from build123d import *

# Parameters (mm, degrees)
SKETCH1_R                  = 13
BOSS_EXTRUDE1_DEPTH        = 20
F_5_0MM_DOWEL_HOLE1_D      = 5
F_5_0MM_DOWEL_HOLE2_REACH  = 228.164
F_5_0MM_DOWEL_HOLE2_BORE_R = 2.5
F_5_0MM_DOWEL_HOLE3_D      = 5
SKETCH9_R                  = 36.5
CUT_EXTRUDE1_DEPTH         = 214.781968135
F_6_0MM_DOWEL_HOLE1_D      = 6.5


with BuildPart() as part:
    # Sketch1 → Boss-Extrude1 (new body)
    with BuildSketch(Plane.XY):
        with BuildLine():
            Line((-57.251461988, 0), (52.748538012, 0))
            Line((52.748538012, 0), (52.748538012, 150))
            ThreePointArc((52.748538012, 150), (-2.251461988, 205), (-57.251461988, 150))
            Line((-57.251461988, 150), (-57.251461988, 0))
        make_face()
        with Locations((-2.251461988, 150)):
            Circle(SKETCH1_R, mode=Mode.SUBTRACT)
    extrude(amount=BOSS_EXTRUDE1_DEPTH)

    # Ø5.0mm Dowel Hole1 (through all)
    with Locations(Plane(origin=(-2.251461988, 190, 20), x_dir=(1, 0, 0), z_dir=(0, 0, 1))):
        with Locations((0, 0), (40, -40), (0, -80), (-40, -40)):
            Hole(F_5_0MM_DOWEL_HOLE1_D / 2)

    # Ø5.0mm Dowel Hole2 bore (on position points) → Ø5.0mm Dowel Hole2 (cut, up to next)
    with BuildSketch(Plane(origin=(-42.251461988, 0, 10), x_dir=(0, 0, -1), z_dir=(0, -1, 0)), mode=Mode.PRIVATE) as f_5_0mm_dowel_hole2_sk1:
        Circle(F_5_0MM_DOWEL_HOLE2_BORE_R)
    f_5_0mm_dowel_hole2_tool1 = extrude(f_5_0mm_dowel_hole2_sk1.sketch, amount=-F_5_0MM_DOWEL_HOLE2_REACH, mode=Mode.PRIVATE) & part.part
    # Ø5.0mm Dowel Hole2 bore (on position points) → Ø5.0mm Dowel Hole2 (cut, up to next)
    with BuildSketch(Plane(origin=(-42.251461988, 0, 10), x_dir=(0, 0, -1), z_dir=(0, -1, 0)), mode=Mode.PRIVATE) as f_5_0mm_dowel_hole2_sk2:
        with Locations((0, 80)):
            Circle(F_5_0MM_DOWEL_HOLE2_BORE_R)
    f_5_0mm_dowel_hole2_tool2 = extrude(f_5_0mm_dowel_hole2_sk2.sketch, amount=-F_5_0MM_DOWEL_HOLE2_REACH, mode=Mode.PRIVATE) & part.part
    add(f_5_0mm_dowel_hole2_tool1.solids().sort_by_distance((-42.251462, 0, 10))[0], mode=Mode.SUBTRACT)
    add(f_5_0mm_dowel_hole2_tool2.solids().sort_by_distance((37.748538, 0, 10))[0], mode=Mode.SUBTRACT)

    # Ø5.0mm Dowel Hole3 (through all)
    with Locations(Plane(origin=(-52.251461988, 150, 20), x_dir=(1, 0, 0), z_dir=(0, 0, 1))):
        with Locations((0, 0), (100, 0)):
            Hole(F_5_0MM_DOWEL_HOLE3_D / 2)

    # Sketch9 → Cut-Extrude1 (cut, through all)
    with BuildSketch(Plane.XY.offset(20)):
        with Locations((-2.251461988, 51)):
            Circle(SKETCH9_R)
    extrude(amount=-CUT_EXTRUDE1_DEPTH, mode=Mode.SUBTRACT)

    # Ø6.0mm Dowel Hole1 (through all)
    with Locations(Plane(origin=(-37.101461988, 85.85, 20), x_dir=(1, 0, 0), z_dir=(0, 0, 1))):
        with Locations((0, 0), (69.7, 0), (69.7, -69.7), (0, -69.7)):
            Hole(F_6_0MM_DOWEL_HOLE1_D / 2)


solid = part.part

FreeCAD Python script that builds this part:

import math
import FreeCAD as App
import Part
import Sketcher
Q = App.Units.Quantity

doc = App.newDocument("Part")
body = doc.addObject("PartDesign::Body", "Body")

sketch1 = doc.addObject("Sketcher::SketchObject", "Sketch")
body.addObject(sketch1)
sketch1.AttachmentSupport = (doc.XY_Plane, [""])
sketch1.MapMode = "FlatFace"
sketch1.addGeometry([
    Part.LineSegment(App.Vector(-57, 0, 0), App.Vector(53, 0, 0)),
    Part.LineSegment(App.Vector(53, 0, 0), App.Vector(53, 150, 0)),
    Part.ArcOfCircle(Part.Circle(App.Vector(-2, 150, 0), App.Vector(0, 0, 1), 55), math.radians(0), math.radians(180)),
    Part.LineSegment(App.Vector(-57, 150, 0), App.Vector(-57, 0, 0)),
    Part.Circle(App.Vector(-2, 150, 0), App.Vector(0, 0, 1), 13),
], False)
sketch1.addConstraint([
    Sketcher.Constraint("Coincident", 0, 2, 1, 1),
    Sketcher.Constraint("Tangent", 1, 2, 2, 1),
    Sketcher.Constraint("Tangent", 2, 2, 3, 1),
    Sketcher.Constraint("Coincident", 3, 2, 0, 1),
    Sketcher.Constraint("Horizontal", 0),
    Sketcher.Constraint("Vertical", 1),
    Sketcher.Constraint("Vertical", 3),
    Sketcher.Constraint("Coincident", 4, 3, 2, 3),
    Sketcher.Constraint("PointOnObject", 0, 2, -1),
    Sketcher.Constraint("Diameter", 4, Q("26 mm")),
    Sketcher.Constraint("Radius", 2, Q("55 mm")),
    Sketcher.Constraint("DistanceY", 1, 1, 1, 2, Q("150 mm")),
    Sketcher.Constraint("DistanceX", 2, 3, -1, 1, Q("2.251462 mm")),
])
pad1 = doc.addObject("PartDesign::Pad", "Pad")
body.addObject(pad1)
pad1.Profile = sketch1
pad1.Length = 20

sketch2 = doc.addObject("Sketcher::SketchObject", "Sketch001")
body.addObject(sketch2)
sketch2.AttachmentSupport = (doc.XY_Plane, [""])
sketch2.MapMode = "FlatFace"
sketch2.AttachmentOffset = App.Placement(App.Vector(0, 0, 20), App.Rotation())
sketch2.addGeometry([
    Part.Circle(App.Vector(-2.3, 190, 0), App.Vector(0, 0, 1), 2.5),
    Part.Circle(App.Vector(37.7, 150, 0), App.Vector(0, 0, 1), 2.5),
    Part.Circle(App.Vector(-2.3, 110, 0), App.Vector(0, 0, 1), 2.5),
    Part.Circle(App.Vector(-42.3, 150, 0), App.Vector(0, 0, 1), 2.5),
], False)
sketch2.addConstraint([
    Sketcher.Constraint("Equal", 0, 1),
    Sketcher.Constraint("Equal", 1, 2),
    Sketcher.Constraint("Equal", 2, 3),
    Sketcher.Constraint("Horizontal", 1, 3, 3, 3),
    Sketcher.Constraint("Vertical", 0, 3, 2, 3),
    Sketcher.Constraint("Diameter", 0, Q("5 mm")),
    Sketcher.Constraint("DistanceY", -1, 1, 0, 3, Q("190 mm")),
    Sketcher.Constraint("DistanceY", -1, 1, 1, 3, Q("150 mm")),
    Sketcher.Constraint("DistanceY", -1, 1, 2, 3, Q("110 mm")),
    Sketcher.Constraint("DistanceX", 0, 3, 1, 3, Q("40 mm")),
    Sketcher.Constraint("DistanceX", 3, 3, 0, 3, Q("40 mm")),
    Sketcher.Constraint("DistanceX", 0, 3, -1, 1, Q("2.251462 mm")),
])
doc.recompute()
hole = doc.addObject("PartDesign::Hole", "Hole")
body.addObject(hole)
hole.Profile = sketch2
hole.ThreadType = "None"
hole.Diameter = 5
hole.DepthType = "ThroughAll"

sketch3 = doc.addObject("Sketcher::SketchObject", "Sketch002")
body.addObject(sketch3)
sketch3.AttachmentSupport = (doc.XZ_Plane, [""])
sketch3.MapMode = "FlatFace"
sketch3.addGeometry(Part.Circle(App.Vector(-42.3, 10, 0), App.Vector(0, 0, 1), 2.5), False)
sketch3.addConstraint([
    Sketcher.Constraint("Diameter", 0, Q("5 mm")),
    Sketcher.Constraint("DistanceY", -1, 1, 0, 3, Q("10 mm")),
    Sketcher.Constraint("DistanceX", 0, 3, -1, 1, Q("42.251462 mm")),
])
pocket1 = doc.addObject("PartDesign::Pocket", "Pocket")
body.addObject(pocket1)
pocket1.Profile = sketch3
pocket1.Length = 150

sketch4 = doc.addObject("Sketcher::SketchObject", "Sketch003")
body.addObject(sketch4)
sketch4.AttachmentSupport = (doc.XZ_Plane, [""])
sketch4.MapMode = "FlatFace"
sketch4.addGeometry(Part.Circle(App.Vector(37.7, 10, 0), App.Vector(0, 0, 1), 2.5), False)
sketch4.addConstraint([
    Sketcher.Constraint("Diameter", 0, Q("5 mm")),
    Sketcher.Constraint("DistanceY", -1, 1, 0, 3, Q("10 mm")),
    Sketcher.Constraint("DistanceX", -1, 1, 0, 3, Q("37.748538 mm")),
])
pocket2 = doc.addObject("PartDesign::Pocket", "Pocket001")
body.addObject(pocket2)
pocket2.Profile = sketch4
pocket2.Length = 150

sketch5 = doc.addObject("Sketcher::SketchObject", "Sketch004")
body.addObject(sketch5)
sketch5.AttachmentSupport = (doc.XY_Plane, [""])
sketch5.MapMode = "FlatFace"
sketch5.AttachmentOffset = App.Placement(App.Vector(0, 0, 20), App.Rotation())
sketch5.addGeometry([
    Part.Circle(App.Vector(-52.3, 150, 0), App.Vector(0, 0, 1), 2.5),
    Part.Circle(App.Vector(47.7, 150, 0), App.Vector(0, 0, 1), 2.5),
], False)
sketch5.addConstraint([
    Sketcher.Constraint("Equal", 0, 1),
    Sketcher.Constraint("Horizontal", 0, 3, 1, 3),
    Sketcher.Constraint("Diameter", 0, Q("5 mm")),
    Sketcher.Constraint("DistanceY", -1, 1, 0, 3, Q("150 mm")),
    Sketcher.Constraint("DistanceX", 0, 3, 1, 3, Q("100 mm")),
    Sketcher.Constraint("DistanceX", 0, 3, -1, 1, Q("52.251462 mm")),
])
doc.recompute()
hole2 = doc.addObject("PartDesign::Hole", "Hole001")
body.addObject(hole2)
hole2.Profile = sketch5
hole2.ThreadType = "None"
hole2.Diameter = 5
hole2.DepthType = "ThroughAll"

sketch6 = doc.addObject("Sketcher::SketchObject", "Sketch005")
body.addObject(sketch6)
sketch6.AttachmentSupport = (doc.XY_Plane, [""])
sketch6.MapMode = "FlatFace"
sketch6.AttachmentOffset = App.Placement(App.Vector(0, 0, 20), App.Rotation())
sketch6.addGeometry(Part.Circle(App.Vector(-2, 51, 0), App.Vector(0, 0, 1), 36), False)
sketch6.addConstraint([
    Sketcher.Constraint("Diameter", 0, Q("73 mm")),
    Sketcher.Constraint("DistanceY", -1, 1, 0, 3, Q("51 mm")),
    Sketcher.Constraint("DistanceX", 0, 3, -1, 1, Q("2.251462 mm")),
])
pocket3 = doc.addObject("PartDesign::Pocket", "Pocket002")
body.addObject(pocket3)
pocket3.Profile = sketch6
pocket3.Type = "ThroughAll"

sketch7 = doc.addObject("Sketcher::SketchObject", "Sketch006")
body.addObject(sketch7)
sketch7.AttachmentSupport = (doc.XY_Plane, [""])
sketch7.MapMode = "FlatFace"
sketch7.AttachmentOffset = App.Placement(App.Vector(0, 0, 20), App.Rotation())
sketch7.addGeometry([
    Part.Circle(App.Vector(-37.1, 85.8, 0), App.Vector(0, 0, 1), 3.2),
    Part.Circle(App.Vector(32.6, 85.8, 0), App.Vector(0, 0, 1), 3.2),
    Part.Circle(App.Vector(32.6, 16.1, 0), App.Vector(0, 0, 1), 3.2),
    Part.Circle(App.Vector(-37.1, 16.1, 0), App.Vector(0, 0, 1), 3.2),
], False)
sketch7.addConstraint([
    Sketcher.Constraint("Equal", 0, 1),
    Sketcher.Constraint("Equal", 1, 2),
    Sketcher.Constraint("Equal", 2, 3),
    Sketcher.Constraint("Horizontal", 0, 3, 1, 3),
    Sketcher.Constraint("Horizontal", 2, 3, 3, 3),
    Sketcher.Constraint("Vertical", 1, 3, 2, 3),
    Sketcher.Constraint("Vertical", 0, 3, 3, 3),
    Sketcher.Constraint("Diameter", 0, Q("6.5 mm")),
    Sketcher.Constraint("DistanceX", 0, 3, 1, 3, Q("69.7 mm")),
    Sketcher.Constraint("DistanceY", 2, 3, 1, 3, Q("69.7 mm")),
    Sketcher.Constraint("DistanceY", -1, 1, 0, 3, Q("85.85 mm")),
    Sketcher.Constraint("DistanceX", 0, 3, -1, 1, Q("37.101462 mm")),
])
doc.recompute()
hole3 = doc.addObject("PartDesign::Hole", "Hole002")
body.addObject(hole3)
hole3.Profile = sketch7
hole3.ThreadType = "None"
hole3.Diameter = 6.5
hole3.DepthType = "ThroughAll"

doc.recompute()
